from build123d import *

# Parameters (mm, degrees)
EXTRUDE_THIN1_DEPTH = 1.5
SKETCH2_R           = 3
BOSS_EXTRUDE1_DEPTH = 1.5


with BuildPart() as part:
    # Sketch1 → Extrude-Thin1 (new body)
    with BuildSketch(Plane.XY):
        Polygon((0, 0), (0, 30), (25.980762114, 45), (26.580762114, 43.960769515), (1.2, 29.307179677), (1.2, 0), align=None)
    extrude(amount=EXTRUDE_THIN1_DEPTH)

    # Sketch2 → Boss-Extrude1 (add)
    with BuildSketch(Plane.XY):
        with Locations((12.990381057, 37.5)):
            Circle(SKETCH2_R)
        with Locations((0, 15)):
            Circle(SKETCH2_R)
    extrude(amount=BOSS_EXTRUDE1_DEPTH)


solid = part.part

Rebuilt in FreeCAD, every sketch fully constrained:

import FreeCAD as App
import Part
import Sketcher

V = App.Vector
Q = App.Units.Quantity


def add_polygon(sketch, points):
    """Adds a closed chain of lines whose ends are joined by coincident constraints."""
    first, n = sketch.GeometryCount, len(points)
    for a, b in zip(points, points[1:] + points[:1]):
        sketch.addGeometry(Part.LineSegment(App.Vector(*a, 0), App.Vector(*b, 0)), False)
    for i in range(n):
        sketch.addConstraint(Sketcher.Constraint("Coincident", first + i, 2, first + (i + 1) % n, 1))

doc = App.newDocument("Part")
body = doc.addObject("PartDesign::Body", "Body")

sketch1 = body.newObject("Sketcher::SketchObject", "Sketch")
sketch1.AttachmentSupport = (doc.getObject("XY_Plane"), [""])
sketch1.MapMode = "FlatFace"
add_polygon(sketch1, [(0, 30), (0, 0), (1.2, 0), (1.2, 29.3), (26.6, 44), (26, 45)])
sketch1.addConstraint([
    Sketcher.Constraint("Vertical", 0),
    Sketcher.Constraint("Horizontal", 1),
    Sketcher.Constraint("Vertical", 2),
    Sketcher.Constraint("Coincident", 0, 2, -1, 1),
    Sketcher.Constraint("Perpendicular", 3, 4),
    Sketcher.Constraint("Perpendicular", 4, 5),
    Sketcher.Constraint("DistanceY", 0, 2, 0, 1, 30.0),
    Sketcher.Constraint("Angle", 3, Q("30 deg")),
    Sketcher.Constraint("Distance", 5, 30.0),
    Sketcher.Constraint("DistanceX", 1, 1, 1, 2, 1.2),
    Sketcher.Constraint("Distance", 4, 1.2),
])
pad1 = body.newObject("PartDesign::Pad", "Pad")
pad1.Profile = sketch1
pad1.Length = 1.5

sketch2 = body.newObject("Sketcher::SketchObject", "Sketch001")
sketch2.AttachmentSupport = (doc.getObject("XY_Plane"), [""])
sketch2.MapMode = "FlatFace"
sketch2.addGeometry([
    Part.Circle(V(13, 37.5, 0), V(0, 0, 1), 3),
    Part.Circle(V(0, 15, 0), V(0, 0, 1), 3),
], False)
sketch2.addConstraint([
    Sketcher.Constraint("Equal", 0, 1),
    Sketcher.Constraint("PointOnObject", 1, 3, -2),
    Sketcher.Constraint("Diameter", 0, 6.0),
    Sketcher.Constraint("DistanceY", -1, 1, 1, 3, 15.0),
    Sketcher.Constraint("DistanceY", -1, 1, 0, 3, 37.5),
    Sketcher.Constraint("DistanceX", -1, 1, 0, 3, 12.990381),
])
pad2 = body.newObject("PartDesign::Pad", "Pad001")
pad2.Profile = sketch2
pad2.Length = 1.5

doc.recompute()
